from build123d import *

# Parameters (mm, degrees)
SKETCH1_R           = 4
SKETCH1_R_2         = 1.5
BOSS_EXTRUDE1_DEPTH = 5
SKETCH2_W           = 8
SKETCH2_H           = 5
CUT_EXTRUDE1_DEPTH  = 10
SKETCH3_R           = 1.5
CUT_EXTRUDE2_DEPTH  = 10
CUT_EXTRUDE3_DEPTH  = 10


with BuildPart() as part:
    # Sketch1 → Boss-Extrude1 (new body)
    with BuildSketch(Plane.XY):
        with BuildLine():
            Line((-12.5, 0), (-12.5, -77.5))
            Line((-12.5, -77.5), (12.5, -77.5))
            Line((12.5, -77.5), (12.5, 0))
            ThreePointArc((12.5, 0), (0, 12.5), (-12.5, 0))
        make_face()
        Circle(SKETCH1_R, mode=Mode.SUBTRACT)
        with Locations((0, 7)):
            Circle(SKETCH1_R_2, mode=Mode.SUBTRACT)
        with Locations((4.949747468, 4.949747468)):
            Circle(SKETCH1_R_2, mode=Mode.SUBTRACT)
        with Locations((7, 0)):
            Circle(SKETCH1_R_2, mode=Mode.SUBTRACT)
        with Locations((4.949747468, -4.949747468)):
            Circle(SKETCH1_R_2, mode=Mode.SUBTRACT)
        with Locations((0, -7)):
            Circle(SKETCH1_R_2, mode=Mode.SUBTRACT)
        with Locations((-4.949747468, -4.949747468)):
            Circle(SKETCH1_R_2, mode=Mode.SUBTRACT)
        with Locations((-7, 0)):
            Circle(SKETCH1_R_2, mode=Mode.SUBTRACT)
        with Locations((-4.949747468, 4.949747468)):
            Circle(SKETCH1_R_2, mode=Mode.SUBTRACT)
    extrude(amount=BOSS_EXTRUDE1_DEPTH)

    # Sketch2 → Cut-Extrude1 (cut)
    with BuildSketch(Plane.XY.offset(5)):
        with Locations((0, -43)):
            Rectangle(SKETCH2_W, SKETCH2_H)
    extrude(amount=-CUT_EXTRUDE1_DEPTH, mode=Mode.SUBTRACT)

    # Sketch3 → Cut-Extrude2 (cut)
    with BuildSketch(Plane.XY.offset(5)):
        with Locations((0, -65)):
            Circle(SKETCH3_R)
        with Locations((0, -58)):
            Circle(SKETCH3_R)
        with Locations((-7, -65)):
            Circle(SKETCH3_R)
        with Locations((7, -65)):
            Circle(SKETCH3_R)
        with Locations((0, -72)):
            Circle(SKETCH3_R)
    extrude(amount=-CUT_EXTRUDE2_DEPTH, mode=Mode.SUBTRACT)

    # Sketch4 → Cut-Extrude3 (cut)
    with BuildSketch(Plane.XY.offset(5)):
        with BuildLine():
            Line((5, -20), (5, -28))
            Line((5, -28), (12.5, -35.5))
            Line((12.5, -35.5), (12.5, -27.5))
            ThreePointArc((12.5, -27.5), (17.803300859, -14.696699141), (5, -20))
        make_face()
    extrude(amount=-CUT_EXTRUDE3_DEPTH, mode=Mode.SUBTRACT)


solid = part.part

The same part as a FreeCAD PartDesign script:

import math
import FreeCAD as App
import Part
import Sketcher

V = App.Vector
Q = App.Units.Quantity

doc = App.newDocument("Part")
body = doc.addObject("PartDesign::Body", "Body")

sketch1 = doc.addObject("Sketcher::SketchObject", "Sketch")
body.addObject(sketch1)
sketch1.AttachmentSupport = (doc.XY_Plane, [""])
sketch1.MapMode = "FlatFace"
sketch1.addGeometry([
    Part.LineSegment(V(-12.5, 0, 0), V(-12.5, -77.5, 0)),
    Part.LineSegment(V(-12.5, -77.5, 0), V(12.5, -77.5, 0)),
    Part.LineSegment(V(12.5, -77.5, 0), V(12.5, 0, 0)),
    Part.ArcOfCircle(Part.Circle(V(0, 0, 0), V(0, 0, 1), 12.5), math.radians(0), math.radians(180)),
    Part.Circle(V(-4.9, -4.9, 0), V(0, 0, 1), 1.5),
    Part.Circle(V(0, -7, 0), V(0, 0, 1), 1.5),
    Part.Circle(V(4.9, -4.9, 0), V(0, 0, 1), 1.5),
    Part.Circle(V(-7, 0, 0), V(0, 0, 1), 1.5),
    Part.Circle(V(-4.9, 4.9, 0), V(0, 0, 1), 1.5),
    Part.Circle(V(0, 0, 0), V(0, 0, 1), 4),
    Part.Circle(V(7, 0, 0), V(0, 0, 1), 1.5),
    Part.Circle(V(0, 7, 0), V(0, 0, 1), 1.5),
    Part.Circle(V(4.9, 4.9, 0), V(0, 0, 1), 1.5),
], False)
sketch1.addConstraint([
    Sketcher.Constraint("Coincident", 0, 2, 1, 1),
    Sketcher.Constraint("Coincident", 1, 2, 2, 1),
    Sketcher.Constraint("Tangent", 2, 2, 3, 1),
    Sketcher.Constraint("Tangent", 3, 2, 0, 1),
    Sketcher.Constraint("Vertical", 0),
    Sketcher.Constraint("Horizontal", 1),
    Sketcher.Constraint("Vertical", 2),
    Sketcher.Constraint("Coincident", 3, 3, -1, 1),
    Sketcher.Constraint("Coincident", 9, 3, -1, 1),
    Sketcher.Constraint("Equal", 4, 5),
    Sketcher.Constraint("Equal", 5, 6),
    Sketcher.Constraint("Equal", 6, 7),
    Sketcher.Constraint("Equal", 7, 8),
    Sketcher.Constraint("Equal", 8, 10),
    Sketcher.Constraint("Equal", 10, 11),
    Sketcher.Constraint("Equal", 11, 12),
    Sketcher.Constraint("Symmetric", 6, 3, 8, 3, -1, 1),
    Sketcher.Constraint("Symmetric", 7, 3, 10, 3, -1, 1),
    Sketcher.Constraint("Symmetric", 5, 3, 11, 3, -1, 1),
    Sketcher.Constraint("Symmetric", 4, 3, 12, 3, -1, 1),
    Sketcher.Constraint("Symmetric", 4, 3, 6, 3, -2),
    Sketcher.Constraint("PointOnObject", 5, 3, -2),
    Sketcher.Constraint("PointOnObject", 7, 3, -1),
    Sketcher.Constraint("Diameter", 4, Q("3 mm")),
    Sketcher.Constraint("Diameter", 9, Q("8 mm")),
    Sketcher.Constraint("Radius", 3, Q("12.5 mm")),
    Sketcher.Constraint("DistanceY", 0, 2, 0, 1, Q("77.5 mm")),
    Sketcher.Constraint("DistanceY", 5, 3, -1, 1, Q("7 mm")),
    Sketcher.Constraint("DistanceX", 7, 3, -1, 1, Q("7 mm")),
    Sketcher.Constraint("DistanceX", 4, 3, -1, 1, Q("4.949747 mm")),
    Sketcher.Constraint("DistanceY", 4, 3, -1, 1, Q("4.949747 mm")),
])
pad1 = doc.addObject("PartDesign::Pad", "Pad")
body.addObject(pad1)
pad1.Profile = sketch1
pad1.Length = 5

sketch2 = doc.addObject("Sketcher::SketchObject", "Sketch001")
body.addObject(sketch2)
sketch2.AttachmentSupport = (doc.XY_Plane, [""])
sketch2.MapMode = "FlatFace"
sketch2.AttachmentOffset = App.Placement(V(0, 0, 5), App.Rotation())
sketch2.addGeometry([
    Part.LineSegment(V(-4, -40, 0), V(-4, -46, 0)),
    Part.LineSegment(V(-4, -46, 0), V(4, -46, 0)),
    Part.LineSegment(V(4, -46, 0), V(4, -40, 0)),
    Part.LineSegment(V(4, -40, 0), V(-4, -40, 0)),
], False)
sketch2.addConstraint([
    Sketcher.Constraint("Coincident", 0, 2, 1, 1),
    Sketcher.Constraint("Coincident", 1, 2, 2, 1),
    Sketcher.Constraint("Coincident", 2, 2, 3, 1),
    Sketcher.Constraint("Coincident", 3, 2, 0, 1),
    Sketcher.Constraint("Vertical", 0),
    Sketcher.Constraint("Horizontal", 1),
    Sketcher.Constraint("Vertical", 2),
    Sketcher.Constraint("Horizontal", 3),
    Sketcher.Constraint("DistanceX", 1, 1, 1, 2, Q("8 mm")),
    Sketcher.Constraint("DistanceY", 0, 2, 0, 1, Q("5 mm")),
    Sketcher.Constraint("DistanceX", 0, 2, -1, 1, Q("4 mm")),
    Sketcher.Constraint("DistanceY", 0, 2, -1, 1, Q("45.5 mm")),
])
pocket1 = doc.addObject("PartDesign::Pocket", "Pocket")
body.addObject(pocket1)
pocket1.Profile = sketch2
pocket1.Length = 10

sketch3 = doc.addObject("Sketcher::SketchObject", "Sketch002")
body.addObject(sketch3)
sketch3.AttachmentSupport = (doc.XY_Plane, [""])
sketch3.MapMode = "FlatFace"
sketch3.AttachmentOffset = App.Placement(V(0, 0, 5), App.Rotation())
sketch3.addGeometry([
    Part.Circle(V(0, -65, 0), V(0, 0, 1), 1.5),
    Part.Circle(V(0, -58, 0), V(0, 0, 1), 1.5),
    Part.Circle(V(-7, -65, 0), V(0, 0, 1), 1.5),
    Part.Circle(V(7, -65, 0), V(0, 0, 1), 1.5),
    Part.Circle(V(0, -72, 0), V(0, 0, 1), 1.5),
], False)
sketch3.addConstraint([
    Sketcher.Constraint("Equal", 0, 1),
    Sketcher.Constraint("Equal", 1, 2),
    Sketcher.Constraint("Equal", 2, 3),
    Sketcher.Constraint("Equal", 3, 4),
    Sketcher.Constraint("Symmetric", 2, 3, 3, 3, -2),
    Sketcher.Constraint("PointOnObject", 0, 3, -2),
    Sketcher.Constraint("PointOnObject", 1, 3, -2),
    Sketcher.Constraint("PointOnObject", 4, 3, -2),
    Sketcher.Constraint("Horizontal", 0, 3, 2, 3),
    Sketcher.Constraint("Diameter", 0, Q("3 mm")),
    Sketcher.Constraint("DistanceY", 0, 3, -1, 1, Q("65 mm")),
    Sketcher.Constraint("DistanceY", 1, 3, -1, 1, Q("58 mm")),
    Sketcher.Constraint("DistanceX", 2, 3, -1, 1, Q("7 mm")),
    Sketcher.Constraint("DistanceY", 4, 3, -1, 1, Q("72 mm")),
])
pocket2 = doc.addObject("PartDesign::Pocket", "Pocket001")
body.addObject(pocket2)
pocket2.Profile = sketch3
pocket2.Length = 10

sketch4 = doc.addObject("Sketcher::SketchObject", "Sketch003")
body.addObject(sketch4)
sketch4.AttachmentSupport = (doc.XY_Plane, [""])
sketch4.MapMode = "FlatFace"
sketch4.AttachmentOffset = App.Placement(V(0, 0, 5), App.Rotation())
sketch4.addGeometry([
    Part.LineSegment(V(5, -20, 0), V(5, -28, 0)),
    Part.LineSegment(V(5, -28, 0), V(12, -36, 0)),
    Part.LineSegment(V(12, -36, 0), V(12, -28, 0)),
    Part.ArcOfCircle(Part.Circle(V(12, -20, 0), V(0, 0, 1), 8), math.radians(-90), math.radians(180)),
], False)
sketch4.addConstraint([
    Sketcher.Constraint("Coincident", 0, 2, 1, 1),
    Sketcher.Constraint("Coincident", 1, 2, 2, 1),
    Sketcher.Constraint("Coincident", 2, 2, 3, 1),
    Sketcher.Constraint("Tangent", 3, 2, 0, 1),
    Sketcher.Constraint("Vertical", 0),
    Sketcher.Constraint("Vertical", 2),
    Sketcher.Constraint("Vertical", 3, 3, 1, 2),
    Sketcher.Constraint("Equal", 0, 2),
    Sketcher.Constraint("Radius", 3, Q("7.5 mm")),
    Sketcher.Constraint("DistanceY", 0, 2, 0, 1, Q("8 mm")),
    Sketcher.Constraint("DistanceY", 3, 3, -1, 1, Q("20 mm")),
    Sketcher.Constraint("DistanceX", -1, 1, 0, 2, Q("5 mm")),
])
pocket3 = doc.addObject("PartDesign::Pocket", "Pocket002")
body.addObject(pocket3)
pocket3.Profile = sketch4
pocket3.Length = 10

doc.recompute()
